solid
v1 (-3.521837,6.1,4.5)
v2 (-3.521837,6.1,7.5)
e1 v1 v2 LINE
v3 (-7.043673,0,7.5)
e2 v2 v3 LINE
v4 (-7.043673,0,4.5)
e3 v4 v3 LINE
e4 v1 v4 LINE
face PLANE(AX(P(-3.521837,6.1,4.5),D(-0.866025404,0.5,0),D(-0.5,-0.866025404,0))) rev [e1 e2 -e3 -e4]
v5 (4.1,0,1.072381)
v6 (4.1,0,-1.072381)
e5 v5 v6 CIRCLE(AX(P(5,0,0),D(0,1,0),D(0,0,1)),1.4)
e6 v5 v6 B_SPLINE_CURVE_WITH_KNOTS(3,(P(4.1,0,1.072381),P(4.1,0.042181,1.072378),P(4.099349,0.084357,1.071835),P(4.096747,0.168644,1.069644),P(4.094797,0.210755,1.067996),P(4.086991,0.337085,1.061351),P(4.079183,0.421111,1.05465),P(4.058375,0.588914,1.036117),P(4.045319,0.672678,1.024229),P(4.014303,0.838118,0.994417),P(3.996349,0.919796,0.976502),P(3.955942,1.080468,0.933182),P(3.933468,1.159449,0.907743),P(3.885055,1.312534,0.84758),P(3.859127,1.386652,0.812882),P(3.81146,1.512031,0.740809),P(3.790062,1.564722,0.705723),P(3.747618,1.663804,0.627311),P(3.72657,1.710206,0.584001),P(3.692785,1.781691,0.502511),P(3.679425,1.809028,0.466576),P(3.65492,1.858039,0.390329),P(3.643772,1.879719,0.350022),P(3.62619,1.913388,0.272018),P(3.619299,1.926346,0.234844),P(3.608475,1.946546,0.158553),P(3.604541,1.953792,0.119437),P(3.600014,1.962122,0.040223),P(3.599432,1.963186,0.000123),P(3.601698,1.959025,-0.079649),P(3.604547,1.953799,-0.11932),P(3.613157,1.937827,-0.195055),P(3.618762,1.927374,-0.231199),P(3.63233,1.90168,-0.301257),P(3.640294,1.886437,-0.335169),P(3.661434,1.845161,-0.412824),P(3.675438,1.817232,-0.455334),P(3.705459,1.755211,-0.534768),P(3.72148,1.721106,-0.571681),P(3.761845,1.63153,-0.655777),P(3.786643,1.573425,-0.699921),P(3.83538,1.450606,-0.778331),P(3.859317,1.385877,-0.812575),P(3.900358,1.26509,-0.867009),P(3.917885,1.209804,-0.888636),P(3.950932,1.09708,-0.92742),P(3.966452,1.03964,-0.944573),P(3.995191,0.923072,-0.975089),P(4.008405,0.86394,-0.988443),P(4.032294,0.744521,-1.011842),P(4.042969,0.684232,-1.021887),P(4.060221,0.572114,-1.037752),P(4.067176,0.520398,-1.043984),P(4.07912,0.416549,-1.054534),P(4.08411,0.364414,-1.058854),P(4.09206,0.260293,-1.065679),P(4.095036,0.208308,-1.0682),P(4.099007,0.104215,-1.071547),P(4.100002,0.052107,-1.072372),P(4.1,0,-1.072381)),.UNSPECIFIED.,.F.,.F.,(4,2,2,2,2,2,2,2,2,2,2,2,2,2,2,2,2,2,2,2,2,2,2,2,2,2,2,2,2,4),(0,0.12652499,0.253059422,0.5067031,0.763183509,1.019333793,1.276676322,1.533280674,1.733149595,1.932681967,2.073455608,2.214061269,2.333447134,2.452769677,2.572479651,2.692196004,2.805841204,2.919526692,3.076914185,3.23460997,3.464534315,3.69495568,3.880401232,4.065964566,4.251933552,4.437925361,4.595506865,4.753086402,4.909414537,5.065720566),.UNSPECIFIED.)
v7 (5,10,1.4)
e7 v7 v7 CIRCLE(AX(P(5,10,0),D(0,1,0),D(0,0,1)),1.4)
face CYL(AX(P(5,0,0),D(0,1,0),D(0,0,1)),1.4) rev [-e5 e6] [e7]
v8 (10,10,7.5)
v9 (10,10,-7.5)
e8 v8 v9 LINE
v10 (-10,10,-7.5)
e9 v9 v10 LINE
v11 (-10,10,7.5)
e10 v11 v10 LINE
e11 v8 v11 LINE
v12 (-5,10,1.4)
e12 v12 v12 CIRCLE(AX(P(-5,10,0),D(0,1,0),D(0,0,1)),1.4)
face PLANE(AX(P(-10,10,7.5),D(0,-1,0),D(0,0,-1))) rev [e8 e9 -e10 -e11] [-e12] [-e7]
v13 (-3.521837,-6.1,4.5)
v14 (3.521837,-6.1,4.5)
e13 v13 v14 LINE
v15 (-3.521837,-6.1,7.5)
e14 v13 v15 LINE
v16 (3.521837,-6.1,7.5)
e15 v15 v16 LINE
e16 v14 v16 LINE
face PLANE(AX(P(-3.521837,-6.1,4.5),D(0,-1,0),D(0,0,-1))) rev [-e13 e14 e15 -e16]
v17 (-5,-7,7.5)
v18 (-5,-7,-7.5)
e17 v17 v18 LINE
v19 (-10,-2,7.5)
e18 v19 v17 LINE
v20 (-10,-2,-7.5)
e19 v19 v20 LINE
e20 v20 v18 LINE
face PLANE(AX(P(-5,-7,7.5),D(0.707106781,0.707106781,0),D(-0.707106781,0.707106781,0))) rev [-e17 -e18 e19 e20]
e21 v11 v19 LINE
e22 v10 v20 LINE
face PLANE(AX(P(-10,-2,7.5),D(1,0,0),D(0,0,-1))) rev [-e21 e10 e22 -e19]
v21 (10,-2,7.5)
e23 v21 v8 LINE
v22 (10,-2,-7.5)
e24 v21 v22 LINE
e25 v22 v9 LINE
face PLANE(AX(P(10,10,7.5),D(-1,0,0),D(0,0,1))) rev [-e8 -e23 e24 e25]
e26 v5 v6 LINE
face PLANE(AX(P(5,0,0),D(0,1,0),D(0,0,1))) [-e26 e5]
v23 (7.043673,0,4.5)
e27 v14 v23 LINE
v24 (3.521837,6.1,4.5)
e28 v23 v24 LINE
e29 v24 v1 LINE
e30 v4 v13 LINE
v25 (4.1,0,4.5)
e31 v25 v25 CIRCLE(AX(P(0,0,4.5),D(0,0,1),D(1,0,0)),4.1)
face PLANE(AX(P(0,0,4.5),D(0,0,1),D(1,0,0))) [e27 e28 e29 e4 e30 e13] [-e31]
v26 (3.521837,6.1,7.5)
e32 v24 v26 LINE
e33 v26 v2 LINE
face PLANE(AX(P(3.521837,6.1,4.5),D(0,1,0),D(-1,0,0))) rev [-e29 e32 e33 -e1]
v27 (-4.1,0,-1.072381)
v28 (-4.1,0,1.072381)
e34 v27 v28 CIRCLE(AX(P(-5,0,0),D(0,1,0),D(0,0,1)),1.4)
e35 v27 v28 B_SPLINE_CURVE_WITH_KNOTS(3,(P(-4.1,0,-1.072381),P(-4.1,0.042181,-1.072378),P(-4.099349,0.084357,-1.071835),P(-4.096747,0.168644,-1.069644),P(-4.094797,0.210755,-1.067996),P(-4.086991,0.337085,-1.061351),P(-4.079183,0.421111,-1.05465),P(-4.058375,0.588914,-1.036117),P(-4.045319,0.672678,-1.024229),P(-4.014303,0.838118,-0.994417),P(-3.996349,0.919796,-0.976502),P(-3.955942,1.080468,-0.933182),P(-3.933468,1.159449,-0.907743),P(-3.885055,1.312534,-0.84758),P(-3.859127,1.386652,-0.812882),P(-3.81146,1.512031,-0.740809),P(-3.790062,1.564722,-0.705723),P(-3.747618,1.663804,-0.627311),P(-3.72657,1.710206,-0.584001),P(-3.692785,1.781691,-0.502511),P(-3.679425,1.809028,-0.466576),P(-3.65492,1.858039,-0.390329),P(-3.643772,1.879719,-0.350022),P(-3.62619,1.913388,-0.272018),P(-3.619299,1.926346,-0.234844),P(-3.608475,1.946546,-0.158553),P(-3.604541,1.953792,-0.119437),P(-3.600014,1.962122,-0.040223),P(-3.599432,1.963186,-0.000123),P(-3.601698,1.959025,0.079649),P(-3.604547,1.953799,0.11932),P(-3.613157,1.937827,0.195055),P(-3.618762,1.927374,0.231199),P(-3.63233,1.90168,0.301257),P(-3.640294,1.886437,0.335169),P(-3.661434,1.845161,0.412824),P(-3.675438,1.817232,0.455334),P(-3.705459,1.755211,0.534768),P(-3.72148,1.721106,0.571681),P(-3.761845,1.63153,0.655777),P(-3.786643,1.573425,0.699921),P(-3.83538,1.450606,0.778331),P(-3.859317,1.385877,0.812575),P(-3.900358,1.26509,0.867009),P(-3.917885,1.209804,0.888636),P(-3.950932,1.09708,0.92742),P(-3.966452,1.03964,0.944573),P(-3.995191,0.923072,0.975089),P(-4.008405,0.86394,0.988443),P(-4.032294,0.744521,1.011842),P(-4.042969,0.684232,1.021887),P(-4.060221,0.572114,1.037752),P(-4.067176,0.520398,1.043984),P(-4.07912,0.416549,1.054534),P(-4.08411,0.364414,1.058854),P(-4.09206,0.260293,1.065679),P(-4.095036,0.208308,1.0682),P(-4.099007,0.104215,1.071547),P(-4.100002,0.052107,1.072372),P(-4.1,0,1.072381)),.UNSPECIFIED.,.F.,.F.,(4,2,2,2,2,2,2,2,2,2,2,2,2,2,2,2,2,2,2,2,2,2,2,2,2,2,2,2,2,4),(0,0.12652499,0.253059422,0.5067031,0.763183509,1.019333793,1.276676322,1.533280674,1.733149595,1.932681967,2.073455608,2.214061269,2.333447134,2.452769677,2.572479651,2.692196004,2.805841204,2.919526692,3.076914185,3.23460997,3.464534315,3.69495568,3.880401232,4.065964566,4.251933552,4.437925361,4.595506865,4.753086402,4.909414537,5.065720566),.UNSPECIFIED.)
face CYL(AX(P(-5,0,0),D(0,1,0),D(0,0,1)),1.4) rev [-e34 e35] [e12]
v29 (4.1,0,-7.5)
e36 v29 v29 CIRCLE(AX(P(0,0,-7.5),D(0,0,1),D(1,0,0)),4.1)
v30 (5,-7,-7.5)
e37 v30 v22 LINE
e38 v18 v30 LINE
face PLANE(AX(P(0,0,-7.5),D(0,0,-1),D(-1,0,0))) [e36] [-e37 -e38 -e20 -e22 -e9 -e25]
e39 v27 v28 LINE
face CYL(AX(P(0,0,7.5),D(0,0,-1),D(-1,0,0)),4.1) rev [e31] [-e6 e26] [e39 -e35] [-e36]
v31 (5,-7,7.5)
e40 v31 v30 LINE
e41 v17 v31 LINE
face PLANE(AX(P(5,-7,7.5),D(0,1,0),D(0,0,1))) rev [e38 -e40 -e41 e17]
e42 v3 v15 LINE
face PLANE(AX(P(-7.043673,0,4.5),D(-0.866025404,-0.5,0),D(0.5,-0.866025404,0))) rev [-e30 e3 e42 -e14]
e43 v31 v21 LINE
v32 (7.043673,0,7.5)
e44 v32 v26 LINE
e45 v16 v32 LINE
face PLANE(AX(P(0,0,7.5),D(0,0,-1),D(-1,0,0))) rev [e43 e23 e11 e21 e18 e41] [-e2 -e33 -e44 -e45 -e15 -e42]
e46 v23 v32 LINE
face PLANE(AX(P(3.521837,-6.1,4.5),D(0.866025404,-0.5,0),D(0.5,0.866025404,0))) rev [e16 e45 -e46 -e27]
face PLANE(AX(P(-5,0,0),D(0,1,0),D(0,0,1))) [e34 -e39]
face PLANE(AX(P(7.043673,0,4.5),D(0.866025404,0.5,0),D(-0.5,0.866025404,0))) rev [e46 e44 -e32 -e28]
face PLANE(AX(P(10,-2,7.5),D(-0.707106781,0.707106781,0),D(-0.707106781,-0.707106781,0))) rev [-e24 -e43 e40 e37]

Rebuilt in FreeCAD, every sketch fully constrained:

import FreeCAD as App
import Part
import Sketcher
from FreeCAD import Vector
Q = App.Units.Quantity

doc = App.newDocument("Part")
body = doc.addObject("PartDesign::Body", "Body")

# Sketch on XY plane
sketch1 = body.newObject("Sketcher::SketchObject", "Sketch")
sketch1.AttachmentSupport = (doc.getObject("XY_Plane"), [""])
sketch1.MapMode = "FlatFace"
sketch1.addGeometry([
    Part.LineSegment(Vector(10, 10, 0), Vector(-10, 10, 0)),  # 0
    Part.LineSegment(Vector(-10, 10, 0), Vector(-10, -2, 0)),  # 1
    Part.LineSegment(Vector(-10, -2, 0), Vector(-5, -7, 0)),  # 2
    Part.LineSegment(Vector(-5, -7, 0), Vector(5, -7, 0)),  # 3
    Part.LineSegment(Vector(5, -7, 0), Vector(10, -2, 0)),  # 4
    Part.LineSegment(Vector(10, -2, 0), Vector(10, 10, 0)),  # 5
    Part.Circle(Vector(0, 0, 0), Vector(0, 0, 1), 4.1),  # 6
], False)
sketch1.addConstraint([
    Sketcher.Constraint("Coincident", 0, 2, 1, 1),
    Sketcher.Constraint("Coincident", 1, 2, 2, 1),
    Sketcher.Constraint("Coincident", 2, 2, 3, 1),
    Sketcher.Constraint("Coincident", 3, 2, 4, 1),
    Sketcher.Constraint("Coincident", 4, 2, 5, 1),
    Sketcher.Constraint("Coincident", 5, 2, 0, 1),
    Sketcher.Constraint("Horizontal", 0),
    Sketcher.Constraint("Vertical", 1),
    Sketcher.Constraint("Horizontal", 3),
    Sketcher.Constraint("Vertical", 5),
    Sketcher.Constraint("Coincident", 6, 3, -1, 1),
    Sketcher.Constraint("Symmetric", 1, 2, 4, 2, -2),
    Sketcher.Constraint("Perpendicular", 2, 4),
    Sketcher.Constraint("Equal", 2, 4),
    Sketcher.Constraint("Diameter", 6, 8.2),
    Sketcher.Constraint("DistanceX", 0, 2, 0, 1, 20.0),
    Sketcher.Constraint("DistanceX", 3, 1, 3, 2, 10.0),
    Sketcher.Constraint("DistanceY", 1, 2, 1, 1, 12.0),
    Sketcher.Constraint("DistanceY", -1, 1, 0, 2, 10.0),
])
pad1 = body.newObject("PartDesign::Pad", "Pad")
pad1.Profile = sketch1
pad1.Length = 15
pad1.Midplane = True

# Sketch on XY plane
sketch2 = body.newObject("Sketcher::SketchObject", "Sketch001")
sketch2.AttachmentSupport = (doc.getObject("XY_Plane"), [""])
sketch2.MapMode = "FlatFace"
sketch2.AttachmentOffset = App.Placement(Vector(0, 0, 7.5), App.Rotation())
sketch2.addGeometry([
    Part.LineSegment(Vector(7, 0, 0), Vector(4, 6, 0)),  # 0
    Part.LineSegment(Vector(4, 6, 0), Vector(-4, 6, 0)),  # 1
    Part.LineSegment(Vector(-4, 6, 0), Vector(-7, 0, 0)),  # 2
    Part.LineSegment(Vector(-7, 0, 0), Vector(-4, -6, 0)),  # 3
    Part.LineSegment(Vector(-4, -6, 0), Vector(4, -6, 0)),  # 4
    Part.LineSegment(Vector(4, -6, 0), Vector(7, 0, 0)),  # 5
], False)
sketch2.addConstraint([
    Sketcher.Constraint("Coincident", 0, 2, 1, 1),
    Sketcher.Constraint("Coincident", 1, 2, 2, 1),
    Sketcher.Constraint("Coincident", 2, 2, 3, 1),
    Sketcher.Constraint("Coincident", 3, 2, 4, 1),
    Sketcher.Constraint("Coincident", 4, 2, 5, 1),
    Sketcher.Constraint("Coincident", 5, 2, 0, 1),
    Sketcher.Constraint("Horizontal", 1),
    Sketcher.Constraint("Horizontal", 4),
    Sketcher.Constraint("Symmetric", 0, 2, 3, 2, -1, 1),
    Sketcher.Constraint("Symmetric", 2, 2, 5, 2, -1, 1),
    Sketcher.Constraint("PointOnObject", 2, 2, -1),
    Sketcher.Constraint("Parallel", 2, 5),
    Sketcher.Constraint("Vertical", 1, 2, 3, 2),
    Sketcher.Constraint("Angle", 0, Q("120 deg")),
    Sketcher.Constraint("DistanceY", -1, 1, 0, 2, 6.1),
    Sketcher.Constraint("DistanceX", 1, 2, 1, 1, 7.043673),
])
pocket1 = body.newObject("PartDesign::Pocket", "Pocket")
pocket1.Profile = sketch2
pocket1.Length = 3

# Sketch on XZ plane
sketch3 = body.newObject("Sketcher::SketchObject", "Sketch002")
sketch3.AttachmentSupport = (doc.getObject("XZ_Plane"), [""])
sketch3.MapMode = "FlatFace"
sketch3.AttachmentOffset = App.Placement(Vector(0, 0, -10), App.Rotation())
sketch3.addGeometry([
    Part.Circle(Vector(5, 0, 0), Vector(0, 0, 1), 1.4),
    Part.Circle(Vector(-5, 0, 0), Vector(0, 0, 1), 1.4),
], False)
sketch3.addConstraint([
    Sketcher.Constraint("Equal", 0, 1),
    Sketcher.Constraint("Symmetric", 0, 3, 1, 3, -1, 1),
    Sketcher.Constraint("PointOnObject", 0, 3, -1),
    Sketcher.Constraint("Diameter", 0, 2.8),
    Sketcher.Constraint("DistanceX", -1, 1, 0, 3, 5.0),
])
pocket2 = body.newObject("PartDesign::Pocket", "Pocket001")
pocket2.Profile = sketch3
pocket2.Length = 10
pocket2.Reversed = True

doc.recompute()
